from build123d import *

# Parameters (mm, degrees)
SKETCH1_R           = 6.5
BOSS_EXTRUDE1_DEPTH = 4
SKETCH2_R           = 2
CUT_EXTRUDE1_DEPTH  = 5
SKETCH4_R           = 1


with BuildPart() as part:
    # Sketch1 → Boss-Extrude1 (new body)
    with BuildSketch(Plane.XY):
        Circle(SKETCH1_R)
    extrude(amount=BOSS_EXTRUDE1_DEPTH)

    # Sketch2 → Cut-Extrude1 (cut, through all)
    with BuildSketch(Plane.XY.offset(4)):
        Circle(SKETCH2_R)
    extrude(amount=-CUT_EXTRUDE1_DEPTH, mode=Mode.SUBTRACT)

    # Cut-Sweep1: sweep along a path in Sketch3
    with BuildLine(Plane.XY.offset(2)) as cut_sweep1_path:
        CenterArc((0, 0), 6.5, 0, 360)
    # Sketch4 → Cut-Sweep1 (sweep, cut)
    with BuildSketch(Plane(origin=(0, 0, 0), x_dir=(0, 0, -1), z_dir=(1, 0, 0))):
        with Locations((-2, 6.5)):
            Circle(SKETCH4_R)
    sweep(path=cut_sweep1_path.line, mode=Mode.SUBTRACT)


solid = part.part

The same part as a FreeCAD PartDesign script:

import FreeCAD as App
import Part
import Sketcher
Q = App.Units.Quantity

doc = App.newDocument("Part")
params = doc.addObject("Spreadsheet::Sheet", "Params")
for row, (alias, value) in enumerate([
    ("sketch1_diameter", "13 mm"),
    ("pad1_length", "4 mm"),
    ("sketch2_diameter", "4 mm"),
    ("sketch3_diameter", "2 mm"),
    ("sketch4_diameter", "13 mm"),
], start=1):
    params.set(f"A{row}", alias)
    params.set(f"B{row}", "=" + value)
    params.setAlias(f"B{row}", alias)

body = doc.addObject("PartDesign::Body", "Body")

# Sketch on XY plane
sketch1 = doc.addObject("Sketcher::SketchObject", "Sketch")
body.addObject(sketch1)
sketch1.AttachmentSupport = (doc.XY_Plane, [""])
sketch1.MapMode = "FlatFace"
sketch1.addGeometry(Part.Circle(App.Vector(0, 0, 0), App.Vector(0, 0, 1), 6), False)
sketch1.addConstraint([
    Sketcher.Constraint("Coincident", 0, 3, -1, 1),
    Sketcher.Constraint("Diameter", 0, Q("13 mm")),
])
sketch1.setExpression("Constraints[1]", "Params.sketch1_diameter")
pad1 = doc.addObject("PartDesign::Pad", "Pad")
body.addObject(pad1)
pad1.Profile = sketch1
pad1.setExpression("Length", "Params.pad1_length")

# Sketch on XY plane
sketch2 = doc.addObject("Sketcher::SketchObject", "Sketch001")
body.addObject(sketch2)
sketch2.AttachmentSupport = (doc.XY_Plane, [""])
sketch2.MapMode = "FlatFace"
sketch2.AttachmentOffset = App.Placement(App.Vector(0, 0, 4), App.Rotation())
sketch2.addGeometry(Part.Circle(App.Vector(0, 0, 0), App.Vector(0, 0, 1), 2), False)
sketch2.addConstraint([
    Sketcher.Constraint("Coincident", 0, 3, -1, 1),
    Sketcher.Constraint("Diameter", 0, Q("4 mm")),
])
sketch2.setExpression("Constraints[1]", "Params.sketch2_diameter")
pocket1 = doc.addObject("PartDesign::Pocket", "Pocket")
body.addObject(pocket1)
pocket1.Profile = sketch2
pocket1.Type = "ThroughAll"

# Sketch on YZ plane
sketch3 = doc.addObject("Sketcher::SketchObject", "Sketch002")
body.addObject(sketch3)
sketch3.AttachmentSupport = (doc.YZ_Plane, [""])
sketch3.MapMode = "FlatFace"
sketch3.addGeometry(Part.Circle(App.Vector(6.5, 2, 0), App.Vector(0, 0, 1), 1), False)
sketch3.addConstraint([
    Sketcher.Constraint("Diameter", 0, Q("2 mm")),
    Sketcher.Constraint("DistanceY", -1, 1, 0, 3, Q("2 mm")),
    Sketcher.Constraint("DistanceX", -1, 1, 0, 3, Q("6.5 mm")),
])
sketch3.setExpression("Constraints[0]", "Params.sketch3_diameter")

# Sketch on XY plane
sketch4 = doc.addObject("Sketcher::SketchObject", "Sketch003")
body.addObject(sketch4)
sketch4.AttachmentSupport = (doc.XY_Plane, [""])
sketch4.MapMode = "FlatFace"
sketch4.AttachmentOffset = App.Placement(App.Vector(0, 0, 2), App.Rotation())
sketch4.addGeometry(Part.Circle(App.Vector(0, 0, 0), App.Vector(0, 0, 1), 6), False)
sketch4.addConstraint([
    Sketcher.Constraint("Coincident", 0, 3, -1, 1),
    Sketcher.Constraint("Diameter", 0, Q("13 mm")),
])
sketch4.setExpression("Constraints[1]", "Params.sketch4_diameter")
doc.recompute()

subtractivepipe = doc.addObject("PartDesign::SubtractivePipe", "SubtractivePipe")
body.addObject(subtractivepipe)
subtractivepipe.Profile = sketch3
subtractivepipe.Spine = (sketch4, ["Edge1"])

doc.recompute()
